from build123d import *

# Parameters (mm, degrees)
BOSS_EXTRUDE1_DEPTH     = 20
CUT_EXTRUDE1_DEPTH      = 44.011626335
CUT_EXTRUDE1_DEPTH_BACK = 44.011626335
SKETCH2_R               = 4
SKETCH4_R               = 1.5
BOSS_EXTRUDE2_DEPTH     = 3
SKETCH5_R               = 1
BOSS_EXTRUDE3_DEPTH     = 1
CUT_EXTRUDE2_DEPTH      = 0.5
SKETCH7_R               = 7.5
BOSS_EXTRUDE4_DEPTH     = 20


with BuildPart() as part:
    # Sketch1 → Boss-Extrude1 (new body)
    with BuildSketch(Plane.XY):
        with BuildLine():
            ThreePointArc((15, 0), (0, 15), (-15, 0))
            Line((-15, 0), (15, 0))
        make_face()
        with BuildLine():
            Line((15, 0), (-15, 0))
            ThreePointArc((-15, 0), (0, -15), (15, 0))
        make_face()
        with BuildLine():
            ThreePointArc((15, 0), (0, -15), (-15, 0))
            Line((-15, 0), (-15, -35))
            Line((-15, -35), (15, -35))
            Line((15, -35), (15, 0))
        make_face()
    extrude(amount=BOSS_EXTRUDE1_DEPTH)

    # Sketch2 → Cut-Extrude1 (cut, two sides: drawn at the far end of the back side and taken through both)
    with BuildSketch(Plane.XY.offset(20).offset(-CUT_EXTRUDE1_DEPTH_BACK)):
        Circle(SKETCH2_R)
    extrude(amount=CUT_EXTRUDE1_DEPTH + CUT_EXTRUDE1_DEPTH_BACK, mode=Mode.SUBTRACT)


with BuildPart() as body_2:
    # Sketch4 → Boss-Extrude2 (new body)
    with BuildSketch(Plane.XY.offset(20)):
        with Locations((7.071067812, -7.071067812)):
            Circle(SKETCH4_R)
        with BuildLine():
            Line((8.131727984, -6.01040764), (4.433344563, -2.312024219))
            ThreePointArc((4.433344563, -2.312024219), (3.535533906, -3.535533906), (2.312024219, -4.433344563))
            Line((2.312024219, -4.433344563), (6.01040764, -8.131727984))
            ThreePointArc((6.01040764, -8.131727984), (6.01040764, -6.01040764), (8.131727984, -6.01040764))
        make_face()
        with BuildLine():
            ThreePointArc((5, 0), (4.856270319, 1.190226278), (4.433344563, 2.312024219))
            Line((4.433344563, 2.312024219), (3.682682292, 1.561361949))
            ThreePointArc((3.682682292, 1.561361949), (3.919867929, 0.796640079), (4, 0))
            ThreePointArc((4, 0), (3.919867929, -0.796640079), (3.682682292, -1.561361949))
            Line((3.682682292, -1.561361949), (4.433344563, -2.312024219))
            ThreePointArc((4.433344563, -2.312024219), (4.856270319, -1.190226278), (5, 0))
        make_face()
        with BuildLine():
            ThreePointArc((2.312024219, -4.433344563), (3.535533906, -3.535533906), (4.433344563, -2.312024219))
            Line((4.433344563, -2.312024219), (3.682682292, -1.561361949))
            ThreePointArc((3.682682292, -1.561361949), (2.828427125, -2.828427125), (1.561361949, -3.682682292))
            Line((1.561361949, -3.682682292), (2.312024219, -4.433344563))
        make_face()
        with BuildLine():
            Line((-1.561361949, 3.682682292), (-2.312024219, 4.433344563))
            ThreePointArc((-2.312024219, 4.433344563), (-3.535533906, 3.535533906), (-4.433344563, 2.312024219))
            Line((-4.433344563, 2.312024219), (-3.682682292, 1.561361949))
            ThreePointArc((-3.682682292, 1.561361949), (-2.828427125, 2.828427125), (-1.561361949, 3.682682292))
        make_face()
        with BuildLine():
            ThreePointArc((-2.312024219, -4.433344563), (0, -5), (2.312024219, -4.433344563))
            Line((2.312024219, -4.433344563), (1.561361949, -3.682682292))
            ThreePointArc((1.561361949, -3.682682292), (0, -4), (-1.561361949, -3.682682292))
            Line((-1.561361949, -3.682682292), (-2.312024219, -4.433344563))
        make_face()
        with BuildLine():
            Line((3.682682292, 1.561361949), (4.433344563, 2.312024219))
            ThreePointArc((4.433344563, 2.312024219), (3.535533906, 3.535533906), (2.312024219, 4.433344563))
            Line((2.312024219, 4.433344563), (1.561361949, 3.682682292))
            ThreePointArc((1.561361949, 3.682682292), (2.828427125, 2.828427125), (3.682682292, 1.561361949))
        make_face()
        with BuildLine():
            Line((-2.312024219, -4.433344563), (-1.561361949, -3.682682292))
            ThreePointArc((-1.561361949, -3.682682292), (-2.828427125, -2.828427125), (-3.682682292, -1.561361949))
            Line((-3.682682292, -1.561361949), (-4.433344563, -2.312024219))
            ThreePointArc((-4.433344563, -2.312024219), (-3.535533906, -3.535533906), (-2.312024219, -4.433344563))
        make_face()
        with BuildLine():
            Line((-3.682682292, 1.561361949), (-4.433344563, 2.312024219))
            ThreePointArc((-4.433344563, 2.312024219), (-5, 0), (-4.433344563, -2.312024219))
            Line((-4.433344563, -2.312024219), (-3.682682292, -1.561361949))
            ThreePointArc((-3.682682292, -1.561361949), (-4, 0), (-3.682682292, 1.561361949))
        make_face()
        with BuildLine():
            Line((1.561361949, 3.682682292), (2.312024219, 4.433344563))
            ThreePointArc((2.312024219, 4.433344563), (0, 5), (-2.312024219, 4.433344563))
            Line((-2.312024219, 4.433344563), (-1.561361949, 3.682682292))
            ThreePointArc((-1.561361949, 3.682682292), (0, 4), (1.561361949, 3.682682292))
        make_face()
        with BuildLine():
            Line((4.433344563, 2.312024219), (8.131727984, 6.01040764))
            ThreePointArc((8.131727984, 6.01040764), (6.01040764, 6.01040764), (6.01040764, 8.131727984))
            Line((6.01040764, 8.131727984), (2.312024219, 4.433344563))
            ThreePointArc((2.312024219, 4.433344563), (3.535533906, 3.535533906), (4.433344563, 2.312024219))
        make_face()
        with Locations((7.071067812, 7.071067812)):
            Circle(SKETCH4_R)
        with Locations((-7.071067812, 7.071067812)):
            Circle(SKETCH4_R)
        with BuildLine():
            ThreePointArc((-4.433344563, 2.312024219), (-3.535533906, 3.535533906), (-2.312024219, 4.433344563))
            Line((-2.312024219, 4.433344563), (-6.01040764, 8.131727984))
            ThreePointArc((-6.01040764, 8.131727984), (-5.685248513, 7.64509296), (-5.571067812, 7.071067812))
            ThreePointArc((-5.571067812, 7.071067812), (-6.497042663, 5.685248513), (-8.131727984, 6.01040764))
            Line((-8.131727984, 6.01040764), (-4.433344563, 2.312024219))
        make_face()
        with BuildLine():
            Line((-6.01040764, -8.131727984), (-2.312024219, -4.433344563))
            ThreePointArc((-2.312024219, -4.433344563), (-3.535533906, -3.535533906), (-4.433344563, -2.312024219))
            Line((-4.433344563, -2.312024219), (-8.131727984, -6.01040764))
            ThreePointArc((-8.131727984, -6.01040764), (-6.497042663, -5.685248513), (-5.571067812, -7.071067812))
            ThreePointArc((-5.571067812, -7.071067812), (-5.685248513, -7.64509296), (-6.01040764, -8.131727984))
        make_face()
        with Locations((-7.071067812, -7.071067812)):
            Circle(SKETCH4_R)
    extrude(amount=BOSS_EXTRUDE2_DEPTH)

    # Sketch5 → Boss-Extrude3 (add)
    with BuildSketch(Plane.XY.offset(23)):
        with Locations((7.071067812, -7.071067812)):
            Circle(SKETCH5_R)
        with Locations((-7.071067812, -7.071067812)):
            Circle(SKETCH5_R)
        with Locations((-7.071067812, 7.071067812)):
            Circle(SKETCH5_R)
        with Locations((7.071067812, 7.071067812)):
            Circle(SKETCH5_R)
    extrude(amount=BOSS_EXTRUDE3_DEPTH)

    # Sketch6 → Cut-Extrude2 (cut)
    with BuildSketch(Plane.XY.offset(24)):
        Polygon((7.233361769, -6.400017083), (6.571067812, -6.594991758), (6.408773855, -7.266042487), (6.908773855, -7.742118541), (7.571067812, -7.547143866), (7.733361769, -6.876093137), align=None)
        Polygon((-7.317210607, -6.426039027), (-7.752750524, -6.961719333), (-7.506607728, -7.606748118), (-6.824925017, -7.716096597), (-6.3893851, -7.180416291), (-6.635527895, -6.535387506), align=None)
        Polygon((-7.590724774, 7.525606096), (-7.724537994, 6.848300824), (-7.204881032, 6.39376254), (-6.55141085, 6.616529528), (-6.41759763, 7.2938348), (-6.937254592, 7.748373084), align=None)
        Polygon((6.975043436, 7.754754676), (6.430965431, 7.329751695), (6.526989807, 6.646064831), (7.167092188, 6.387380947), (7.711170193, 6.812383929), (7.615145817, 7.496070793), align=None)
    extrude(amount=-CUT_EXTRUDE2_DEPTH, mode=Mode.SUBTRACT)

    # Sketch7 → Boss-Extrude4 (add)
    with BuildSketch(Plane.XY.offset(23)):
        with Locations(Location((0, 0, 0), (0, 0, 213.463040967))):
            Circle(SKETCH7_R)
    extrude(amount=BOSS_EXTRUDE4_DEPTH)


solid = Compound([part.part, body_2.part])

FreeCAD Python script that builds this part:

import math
import FreeCAD as App
import Part
import Sketcher

doc = App.newDocument("Part")
body = doc.addObject("PartDesign::Body", "Body")

sketch1 = doc.addObject("Sketcher::SketchObject", "Sketch")
body.addObject(sketch1)
sketch1.AttachmentSupport = (doc.XY_Plane, [""])
sketch1.MapMode = "FlatFace"
sketch1.addGeometry(Part.ArcOfCircle(Part.Circle(App.Vector(0, 0, 0), App.Vector(0, 0, 1), 15), math.radians(0), math.radians(180)), False)
sketch1.addGeometry(Part.LineSegment(App.Vector(-15, 0, 0), App.Vector(-15, -35, 0)), False)
sketch1.addGeometry(Part.LineSegment(App.Vector(-15, -35, 0), App.Vector(15, -35, 0)), False)
sketch1.addGeometry(Part.LineSegment(App.Vector(15, -35, 0), App.Vector(15, 0, 0)), False)
sketch1.addConstraint(Sketcher.Constraint("Tangent", 0, 2, 1, 1))
sketch1.addConstraint(Sketcher.Constraint("Coincident", 1, 2, 2, 1))
sketch1.addConstraint(Sketcher.Constraint("Coincident", 2, 2, 3, 1))
sketch1.addConstraint(Sketcher.Constraint("Tangent", 3, 2, 0, 1))
sketch1.addConstraint(Sketcher.Constraint("Vertical", 1))
sketch1.addConstraint(Sketcher.Constraint("Horizontal", 2))
sketch1.addConstraint(Sketcher.Constraint("Vertical", 3))
sketch1.addConstraint(Sketcher.Constraint("Coincident", 0, 3, -1, 1))
sketch1.addConstraint(Sketcher.Constraint("Radius", 0, 15.0))
sketch1.addConstraint(Sketcher.Constraint("DistanceY", 1, 2, 1, 1, 35.0))
pad1 = doc.addObject("PartDesign::Pad", "Pad")
body.addObject(pad1)
pad1.Profile = sketch1
pad1.Length = 20

sketch2 = doc.addObject("Sketcher::SketchObject", "Sketch001")
body.addObject(sketch2)
sketch2.AttachmentSupport = (doc.XY_Plane, [""])
sketch2.MapMode = "FlatFace"
sketch2.AttachmentOffset = App.Placement(App.Vector(0, 0, 20), App.Rotation())
sketch2.addGeometry(Part.Circle(App.Vector(0, 0, 0), App.Vector(0, 0, 1), 4), False)
sketch2.addConstraint(Sketcher.Constraint("Coincident", 0, 3, -1, 1))
sketch2.addConstraint(Sketcher.Constraint("Diameter", 0, 8.0))
pocket1 = doc.addObject("PartDesign::Pocket", "Pocket")
body.addObject(pocket1)
pocket1.Profile = sketch2
pocket1.Type = "ThroughAll"
pocket1.Midplane = True
body2 = doc.addObject("PartDesign::Body", "Body001")

sketch3 = doc.addObject("Sketcher::SketchObject", "Sketch002")
body2.addObject(sketch3)
sketch3.AttachmentSupport = (doc.getObject("XY_Plane001"), [""])
sketch3.MapMode = "FlatFace"
sketch3.AttachmentOffset = App.Placement(App.Vector(0, 0, 20), App.Rotation())
sketch3.addGeometry(Part.ArcOfCircle(Part.Circle(App.Vector(0, 0, 0), App.Vector(0, 0, 1), 5), math.radians(152), math.radians(208)), False)
sketch3.addGeometry(Part.LineSegment(App.Vector(-4.4, -2.3, 0), App.Vector(-8.1, -6, 0)), False)
sketch3.addGeometry(Part.ArcOfCircle(Part.Circle(App.Vector(-7.1, -7.1, 0), App.Vector(0, 0, 1), 1.5), math.radians(135), math.radians(315)), False)
sketch3.addGeometry(Part.LineSegment(App.Vector(-6, -8.1, 0), App.Vector(-2.3, -4.4, 0)), False)
sketch3.addGeometry(Part.ArcOfCircle(Part.Circle(App.Vector(0, 0, 0), App.Vector(0, 0, 1), 5), math.radians(-118), math.radians(-62)), False)
sketch3.addGeometry(Part.LineSegment(App.Vector(2.3, -4.4, 0), App.Vector(6, -8.1, 0)), False)
sketch3.addGeometry(Part.ArcOfCircle(Part.Circle(App.Vector(7.1, -7.1, 0), App.Vector(0, 0, 1), 1.5), math.radians(-135), math.radians(45)), False)
sketch3.addGeometry(Part.LineSegment(App.Vector(8.1, -6, 0), App.Vector(4.4, -2.3, 0)), False)
sketch3.addGeometry(Part.ArcOfCircle(Part.Circle(App.Vector(0, 0, 0), App.Vector(0, 0, 1), 5), math.radians(-28), math.radians(0)), False)
sketch3.addGeometry(Part.ArcOfCircle(Part.Circle(App.Vector(0, 0, 0), App.Vector(0, 0, 1), 5), math.radians(0), math.radians(28)), False)
sketch3.addGeometry(Part.LineSegment(App.Vector(4.4, 2.3, 0), App.Vector(8.1, 6, 0)), False)
sketch3.addGeometry(Part.ArcOfCircle(Part.Circle(App.Vector(7.1, 7.1, 0), App.Vector(0, 0, 1), 1.5), math.radians(-45), math.radians(135)), False)
sketch3.addGeometry(Part.LineSegment(App.Vector(6, 8.1, 0), App.Vector(2.3, 4.4, 0)), False)
sketch3.addGeometry(Part.ArcOfCircle(Part.Circle(App.Vector(0, 0, 0), App.Vector(0, 0, 1), 5), math.radians(62), math.radians(118)), False)
sketch3.addGeometry(Part.LineSegment(App.Vector(-2.3, 4.4, 0), App.Vector(-6, 8.1, 0)), False)
sketch3.addGeometry(Part.ArcOfCircle(Part.Circle(App.Vector(-7.1, 7.1, 0), App.Vector(0, 0, 1), 1.5), math.radians(45), math.radians(225)), False)
sketch3.addGeometry(Part.LineSegment(App.Vector(-8.1, 6, 0), App.Vector(-4.4, 2.3, 0)), False)
sketch3.addGeometry(Part.ArcOfCircle(Part.Circle(App.Vector(0, 0, 0), App.Vector(0, 0, 1), 4), math.radians(-113), math.radians(-67)), False)
sketch3.addGeometry(Part.ArcOfCircle(Part.Circle(App.Vector(0, 0, 0), App.Vector(0, 0, 1), 4), math.radians(-157), math.radians(-113)), False)
sketch3.addGeometry(Part.ArcOfCircle(Part.Circle(App.Vector(0, 0, 0), App.Vector(0, 0, 1), 4), math.radians(157), math.radians(203)), False)
sketch3.addGeometry(Part.ArcOfCircle(Part.Circle(App.Vector(0, 0, 0), App.Vector(0, 0, 1), 4), math.radians(113), math.radians(157)), False)
sketch3.addGeometry(Part.ArcOfCircle(Part.Circle(App.Vector(0, 0, 0), App.Vector(0, 0, 1), 4), math.radians(67), math.radians(113)), False)
sketch3.addGeometry(Part.ArcOfCircle(Part.Circle(App.Vector(0, 0, 0), App.Vector(0, 0, 1), 4), math.radians(23), math.radians(67)), False)
sketch3.addGeometry(Part.ArcOfCircle(Part.Circle(App.Vector(0, 0, 0), App.Vector(0, 0, 1), 4), math.radians(0), math.radians(23)), False)
sketch3.addGeometry(Part.ArcOfCircle(Part.Circle(App.Vector(0, 0, 0), App.Vector(0, 0, 1), 4), math.radians(-23), math.radians(0)), False)
sketch3.addGeometry(Part.ArcOfCircle(Part.Circle(App.Vector(0, 0, 0), App.Vector(0, 0, 1), 4), math.radians(-67), math.radians(-23)), False)
sketch3.addConstraint(Sketcher.Constraint("Coincident", 0, 2, 1, 1))
sketch3.addConstraint(Sketcher.Constraint("Tangent", 1, 2, 2, 1))
sketch3.addConstraint(Sketcher.Constraint("Tangent", 2, 2, 3, 1))
sketch3.addConstraint(Sketcher.Constraint("Coincident", 3, 2, 4, 1))
sketch3.addConstraint(Sketcher.Constraint("Coincident", 4, 2, 5, 1))
sketch3.addConstraint(Sketcher.Constraint("Tangent", 5, 2, 6, 1))
sketch3.addConstraint(Sketcher.Constraint("Tangent", 6, 2, 7, 1))
sketch3.addConstraint(Sketcher.Constraint("Coincident", 7, 2, 8, 1))
sketch3.addConstraint(Sketcher.Constraint("Tangent", 8, 2, 9, 1))
sketch3.addConstraint(Sketcher.Constraint("Coincident", 9, 2, 10, 1))
sketch3.addConstraint(Sketcher.Constraint("Tangent", 10, 2, 11, 1))
sketch3.addConstraint(Sketcher.Constraint("Tangent", 11, 2, 12, 1))
sketch3.addConstraint(Sketcher.Constraint("Coincident", 12, 2, 13, 1))
sketch3.addConstraint(Sketcher.Constraint("Coincident", 13, 2, 14, 1))
sketch3.addConstraint(Sketcher.Constraint("Tangent", 14, 2, 15, 1))
sketch3.addConstraint(Sketcher.Constraint("Tangent", 15, 2, 16, 1))
sketch3.addConstraint(Sketcher.Constraint("Coincident", 16, 2, 0, 1))
sketch3.addConstraint(Sketcher.Constraint("Tangent", 17, 1, 18, 2))
sketch3.addConstraint(Sketcher.Constraint("Tangent", 18, 1, 19, 2))
sketch3.addConstraint(Sketcher.Constraint("Tangent", 19, 1, 20, 2))
sketch3.addConstraint(Sketcher.Constraint("Tangent", 20, 1, 21, 2))
sketch3.addConstraint(Sketcher.Constraint("Tangent", 21, 1, 22, 2))
sketch3.addConstraint(Sketcher.Constraint("Tangent", 22, 1, 23, 2))
sketch3.addConstraint(Sketcher.Constraint("Tangent", 23, 1, 24, 2))
sketch3.addConstraint(Sketcher.Constraint("Tangent", 24, 1, 25, 2))
sketch3.addConstraint(Sketcher.Constraint("Tangent", 25, 1, 17, 2))
sketch3.addConstraint(Sketcher.Constraint("Coincident", 0, 3, -1, 1))
sketch3.addConstraint(Sketcher.Constraint("Coincident", 4, 3, -1, 1))
sketch3.addConstraint(Sketcher.Constraint("Coincident", 8, 3, -1, 1))
sketch3.addConstraint(Sketcher.Constraint("Coincident", 13, 3, -1, 1))
sketch3.addConstraint(Sketcher.Constraint("Coincident", 17, 3, -1, 1))
sketch3.addConstraint(Sketcher.Constraint("Coincident", 19, 3, -1, 1))
sketch3.addConstraint(Sketcher.Constraint("Coincident", 21, 3, -1, 1))
sketch3.addConstraint(Sketcher.Constraint("Coincident", 23, 3, -1, 1))
sketch3.addConstraint(Sketcher.Constraint("Equal", 0, 4))
sketch3.addConstraint(Sketcher.Constraint("Equal", 2, 6))
sketch3.addConstraint(Sketcher.Constraint("Equal", 4, 8))
sketch3.addConstraint(Sketcher.Constraint("Equal", 8, 9))
sketch3.addConstraint(Sketcher.Constraint("Equal", 6, 11))
sketch3.addConstraint(Sketcher.Constraint("Equal", 9, 13))
sketch3.addConstraint(Sketcher.Constraint("Equal", 11, 15))
sketch3.addConstraint(Sketcher.Constraint("Symmetric", 2, 3, 11, 3, -1, 1))
sketch3.addConstraint(Sketcher.Constraint("Symmetric", 6, 3, 15, 3, -1, 1))
sketch3.addConstraint(Sketcher.Constraint("Symmetric", 2, 3, 6, 3, -2))
sketch3.addConstraint(Sketcher.Constraint("PointOnObject", 8, 2, -1))
sketch3.addConstraint(Sketcher.Constraint("PointOnObject", 23, 1, -1))
sketch3.addConstraint(Sketcher.Constraint("Parallel", 1, 3))
sketch3.addConstraint(Sketcher.Constraint("Perpendicular", 3, 5))
sketch3.addConstraint(Sketcher.Constraint("Parallel", 5, 7))
sketch3.addConstraint(Sketcher.Constraint("Perpendicular", 7, 10))
sketch3.addConstraint(Sketcher.Constraint("Parallel", 10, 12))
sketch3.addConstraint(Sketcher.Constraint("Perpendicular", 12, 14))
sketch3.addConstraint(Sketcher.Constraint("Parallel", 14, 16))
sketch3.addConstraint(Sketcher.Constraint("Horizontal", 3, 2, 4, 2))
sketch3.addConstraint(Sketcher.Constraint("Horizontal", 20, 1, 21, 1))
sketch3.addConstraint(Sketcher.Constraint("Horizontal", 19, 1, 22, 1))
sketch3.addConstraint(Sketcher.Constraint("Horizontal", 18, 1, 24, 1))
sketch3.addConstraint(Sketcher.Constraint("Horizontal", 17, 1, 25, 1))
sketch3.addConstraint(Sketcher.Constraint("Vertical", 18, 1, 19, 1))
sketch3.addConstraint(Sketcher.Constraint("Vertical", 17, 1, 20, 1))
sketch3.addConstraint(Sketcher.Constraint("Equal", 1, 3))
sketch3.addConstraint(Sketcher.Constraint("Radius", 0, 5.0))
sketch3.addConstraint(Sketcher.Constraint("Radius", 17, 4.0))
sketch3.addConstraint(Sketcher.Constraint("Radius", 2, 1.5))
sketch3.addConstraint(Sketcher.Constraint("DistanceX", 17, 1, -1, 1, 1.561362))
sketch3.addConstraint(Sketcher.Constraint("DistanceY", 18, 1, -1, 1, 1.561362))
sketch3.addConstraint(Sketcher.Constraint("DistanceX", 3, 2, 5, 2, 8.322432))
pad2 = doc.addObject("PartDesign::Pad", "Pad001")
body2.addObject(pad2)
pad2.Profile = sketch3
pad2.Length = 3

sketch4 = doc.addObject("Sketcher::SketchObject", "Sketch003")
body2.addObject(sketch4)
sketch4.AttachmentSupport = (doc.getObject("XY_Plane001"), [""])
sketch4.MapMode = "FlatFace"
sketch4.AttachmentOffset = App.Placement(App.Vector(0, 0, 23), App.Rotation())
sketch4.addGeometry(Part.Circle(App.Vector(7.1, -7.1, 0), App.Vector(0, 0, 1), 1), False)
sketch4.addGeometry(Part.Circle(App.Vector(-7.1, -7.1, 0), App.Vector(0, 0, 1), 1), False)
sketch4.addGeometry(Part.Circle(App.Vector(-7.1, 7.1, 0), App.Vector(0, 0, 1), 1), False)
sketch4.addGeometry(Part.Circle(App.Vector(7.1, 7.1, 0), App.Vector(0, 0, 1), 1), False)
sketch4.addConstraint(Sketcher.Constraint("Equal", 0, 1))
sketch4.addConstraint(Sketcher.Constraint("Equal", 1, 2))
sketch4.addConstraint(Sketcher.Constraint("Equal", 2, 3))
sketch4.addConstraint(Sketcher.Constraint("Symmetric", 0, 3, 2, 3, -1, 1))
sketch4.addConstraint(Sketcher.Constraint("Symmetric", 1, 3, 3, 3, -1, 1))
sketch4.addConstraint(Sketcher.Constraint("Symmetric", 0, 3, 1, 3, -2))
sketch4.addConstraint(Sketcher.Constraint("Diameter", 0, 2.0))
sketch4.addConstraint(Sketcher.Constraint("DistanceX", -1, 1, 0, 3, 7.071068))
sketch4.addConstraint(Sketcher.Constraint("DistanceY", 0, 3, -1, 1, 7.071068))
pad3 = doc.addObject("PartDesign::Pad", "Pad002")
body2.addObject(pad3)
pad3.Profile = sketch4
pad3.Length = 1

sketch5 = doc.addObject("Sketcher::SketchObject", "Sketch004")
body2.addObject(sketch5)
sketch5.AttachmentSupport = (doc.getObject("XY_Plane001"), [""])
sketch5.MapMode = "FlatFace"
sketch5.AttachmentOffset = App.Placement(App.Vector(0, 0, 24), App.Rotation())
sketch5.addGeometry(Part.LineSegment(App.Vector(7.233362, -6.400017, 0), App.Vector(6.571068, -6.594992, 0)), False)
sketch5.addGeometry(Part.LineSegment(App.Vector(6.571068, -6.594992, 0), App.Vector(6.408774, -7.266042, 0)), False)
sketch5.addGeometry(Part.LineSegment(App.Vector(6.408774, -7.266042, 0), App.Vector(6.908774, -7.742119, 0)), False)
sketch5.addGeometry(Part.LineSegment(App.Vector(6.908774, -7.742119, 0), App.Vector(7.571068, -7.547144, 0)), False)
sketch5.addGeometry(Part.LineSegment(App.Vector(7.571068, -7.547144, 0), App.Vector(7.733362, -6.876093, 0)), False)
sketch5.addGeometry(Part.LineSegment(App.Vector(7.733362, -6.876093, 0), App.Vector(7.233362, -6.400017, 0)), False)
sketch5.addGeometry(Part.LineSegment(App.Vector(-7.317211, -6.426039, 0), App.Vector(-7.752751, -6.961719, 0)), False)
sketch5.addGeometry(Part.LineSegment(App.Vector(-7.752751, -6.961719, 0), App.Vector(-7.506608, -7.606748, 0)), False)
sketch5.addGeometry(Part.LineSegment(App.Vector(-7.506608, -7.606748, 0), App.Vector(-6.824925, -7.716097, 0)), False)
sketch5.addGeometry(Part.LineSegment(App.Vector(-6.824925, -7.716097, 0), App.Vector(-6.389385, -7.180416, 0)), False)
sketch5.addGeometry(Part.LineSegment(App.Vector(-6.389385, -7.180416, 0), App.Vector(-6.635528, -6.535388, 0)), False)
sketch5.addGeometry(Part.LineSegment(App.Vector(-6.635528, -6.535388, 0), App.Vector(-7.317211, -6.426039, 0)), False)
sketch5.addGeometry(Part.LineSegment(App.Vector(-7.590725, 7.525606, 0), App.Vector(-7.724538, 6.848301, 0)), False)
sketch5.addGeometry(Part.LineSegment(App.Vector(-7.724538, 6.848301, 0), App.Vector(-7.204881, 6.393763, 0)), False)
sketch5.addGeometry(Part.LineSegment(App.Vector(-7.204881, 6.393763, 0), App.Vector(-6.551411, 6.61653, 0)), False)
sketch5.addGeometry(Part.LineSegment(App.Vector(-6.551411, 6.61653, 0), App.Vector(-6.417598, 7.293835, 0)), False)
sketch5.addGeometry(Part.LineSegment(App.Vector(-6.417598, 7.293835, 0), App.Vector(-6.937255, 7.748373, 0)), False)
sketch5.addGeometry(Part.LineSegment(App.Vector(-6.937255, 7.748373, 0), App.Vector(-7.590725, 7.525606, 0)), False)
sketch5.addGeometry(Part.LineSegment(App.Vector(6.975043, 7.754755, 0), App.Vector(6.430965, 7.329752, 0)), False)
sketch5.addGeometry(Part.LineSegment(App.Vector(6.430965, 7.329752, 0), App.Vector(6.52699, 6.646065, 0)), False)
sketch5.addGeometry(Part.LineSegment(App.Vector(6.52699, 6.646065, 0), App.Vector(7.167092, 6.387381, 0)), False)
sketch5.addGeometry(Part.LineSegment(App.Vector(7.167092, 6.387381, 0), App.Vector(7.71117, 6.812384, 0)), False)
sketch5.addGeometry(Part.LineSegment(App.Vector(7.71117, 6.812384, 0), App.Vector(7.615146, 7.496071, 0)), False)
sketch5.addGeometry(Part.LineSegment(App.Vector(7.615146, 7.496071, 0), App.Vector(6.975043, 7.754755, 0)), False)
sketch5.addConstraint(Sketcher.Constraint("Coincident", 0, 2, 1, 1))
sketch5.addConstraint(Sketcher.Constraint("Coincident", 1, 2, 2, 1))
sketch5.addConstraint(Sketcher.Constraint("Coincident", 2, 2, 3, 1))
sketch5.addConstraint(Sketcher.Constraint("Coincident", 3, 2, 4, 1))
sketch5.addConstraint(Sketcher.Constraint("Coincident", 4, 2, 5, 1))
sketch5.addConstraint(Sketcher.Constraint("Coincident", 5, 2, 0, 1))
sketch5.addConstraint(Sketcher.Constraint("Coincident", 6, 2, 7, 1))
sketch5.addConstraint(Sketcher.Constraint("Coincident", 7, 2, 8, 1))
sketch5.addConstraint(Sketcher.Constraint("Coincident", 8, 2, 9, 1))
sketch5.addConstraint(Sketcher.Constraint("Coincident", 9, 2, 10, 1))
sketch5.addConstraint(Sketcher.Constraint("Coincident", 10, 2, 11, 1))
sketch5.addConstraint(Sketcher.Constraint("Coincident", 11, 2, 6, 1))
sketch5.addConstraint(Sketcher.Constraint("Coincident", 12, 2, 13, 1))
sketch5.addConstraint(Sketcher.Constraint("Coincident", 13, 2, 14, 1))
sketch5.addConstraint(Sketcher.Constraint("Coincident", 14, 2, 15, 1))
sketch5.addConstraint(Sketcher.Constraint("Coincident", 15, 2, 16, 1))
sketch5.addConstraint(Sketcher.Constraint("Coincident", 16, 2, 17, 1))
sketch5.addConstraint(Sketcher.Constraint("Coincident", 17, 2, 12, 1))
sketch5.addConstraint(Sketcher.Constraint("Coincident", 18, 2, 19, 1))
sketch5.addConstraint(Sketcher.Constraint("Coincident", 19, 2, 20, 1))
sketch5.addConstraint(Sketcher.Constraint("Coincident", 20, 2, 21, 1))
sketch5.addConstraint(Sketcher.Constraint("Coincident", 21, 2, 22, 1))
sketch5.addConstraint(Sketcher.Constraint("Coincident", 22, 2, 23, 1))
sketch5.addConstraint(Sketcher.Constraint("Coincident", 23, 2, 18, 1))
sketch5.addConstraint(Sketcher.Constraint("DistanceX", 0, 2, 3, 2, 1.0))
sketch5.addConstraint(Sketcher.Constraint("DistanceX", 1, 2, 2, 2, 0.5))
sketch5.addConstraint(Sketcher.Constraint("DistanceX", 5, 2, 4, 2, 0.5))
sketch5.addConstraint(Sketcher.Constraint("DistanceY", -1, 1, 12, 2, 6.848301))
sketch5.addConstraint(Sketcher.Constraint("DistanceY", 3, 2, 1, 2, 0.281101))
sketch5.addConstraint(Sketcher.Constraint("DistanceY", 4, 2, 0, 2, 0.281101))
sketch5.addConstraint(Sketcher.Constraint("DistanceY", 2, 2, 5, 2, 1.342101))
sketch5.addConstraint(Sketcher.Constraint("DistanceY", 2, 2, 6, 2, 0.780399))
sketch5.addConstraint(Sketcher.Constraint("DistanceX", 8, 2, 1, 2, 13.233699))
sketch5.addConstraint(Sketcher.Constraint("DistanceX", 10, 2, 1, 2, 13.044302))
sketch5.addConstraint(Sketcher.Constraint("DistanceY", 11, 2, 13, 2, 12.819802))
sketch5.addConstraint(Sketcher.Constraint("DistanceX", 11, 2, 14, 2, 0.7658))
sketch5.addConstraint(Sketcher.Constraint("DistanceX", 14, 2, 19, 2, 13.078401))
sketch5.addConstraint(Sketcher.Constraint("DistanceY", 5, 2, 20, 2, 12.787398))
sketch5.addConstraint(Sketcher.Constraint("DistanceY", 5, 2, 21, 2, 13.212401))
sketch5.addConstraint(Sketcher.Constraint("DistanceY", 0, 2, -1, 1, 6.594992))
sketch5.addConstraint(Sketcher.Constraint("DistanceY", 2, 2, -1, 1, 7.742119))
sketch5.addConstraint(Sketcher.Constraint("DistanceX", -1, 1, 4, 2, 7.733362))
sketch5.addConstraint(Sketcher.Constraint("DistanceX", 6, 2, -1, 1, 7.752751))
sketch5.addConstraint(Sketcher.Constraint("DistanceY", 7, 2, -1, 1, 7.606748))
sketch5.addConstraint(Sketcher.Constraint("DistanceX", 11, 2, -1, 1, 7.317211))
sketch5.addConstraint(Sketcher.Constraint("DistanceY", 11, 2, -1, 1, 6.426039))
sketch5.addConstraint(Sketcher.Constraint("DistanceX", 13, 2, -1, 1, 7.204881))
sketch5.addConstraint(Sketcher.Constraint("DistanceY", -1, 1, 14, 2, 6.61653))
sketch5.addConstraint(Sketcher.Constraint("DistanceY", -1, 1, 18, 2, 7.329752))
sketch5.addConstraint(Sketcher.Constraint("DistanceX", -1, 1, 21, 2, 7.71117))
sketch5.addConstraint(Sketcher.Constraint("DistanceY", -1, 1, 22, 2, 7.496071))
sketch5.addConstraint(Sketcher.Constraint("DistanceY", 1, 2, 0, 2, 0.671051))
sketch5.addConstraint(Sketcher.Constraint("DistanceX", 6, 2, 0, 2, 14.323818))
sketch5.addConstraint(Sketcher.Constraint("DistanceX", 7, 2, 1, 2, 13.915382))
sketch5.addConstraint(Sketcher.Constraint("DistanceX", 7, 2, 5, 2, 14.739969))
sketch5.addConstraint(Sketcher.Constraint("DistanceY", 8, 2, 7, 2, 0.109348))
sketch5.addConstraint(Sketcher.Constraint("DistanceX", 8, 2, 9, 2, 0.43554))
sketch5.addConstraint(Sketcher.Constraint("DistanceY", 8, 2, 9, 2, 0.53568))
sketch5.addConstraint(Sketcher.Constraint("DistanceY", 9, 2, 10, 2, 0.645029))
sketch5.addConstraint(Sketcher.Constraint("DistanceX", 12, 2, 10, 2, 1.08901))
sketch5.addConstraint(Sketcher.Constraint("DistanceX", 12, 2, 15, 2, 1.30694))
sketch5.addConstraint(Sketcher.Constraint("DistanceY", 15, 2, 16, 2, 0.454538))
sketch5.addConstraint(Sketcher.Constraint("DistanceY", 13, 2, 16, 2, 1.354611))
sketch5.addConstraint(Sketcher.Constraint("DistanceX", 17, 2, 16, 2, 0.65347))
sketch5.addConstraint(Sketcher.Constraint("DistanceY", 15, 2, 17, 2, 0.231771))
sketch5.addConstraint(Sketcher.Constraint("DistanceX", 16, 2, 18, 2, 13.36822))
sketch5.addConstraint(Sketcher.Constraint("DistanceY", 19, 2, 15, 2, 0.64777))
sketch5.addConstraint(Sketcher.Constraint("DistanceX", 20, 2, 5, 2, 0.06627))
sketch5.addConstraint(Sketcher.Constraint("DistanceX", 18, 2, 22, 2, 1.18418))
sketch5.addConstraint(Sketcher.Constraint("DistanceX", 18, 2, 23, 2, 0.544078))
sketch5.addConstraint(Sketcher.Constraint("DistanceY", 19, 2, 23, 2, 1.10869))
sketch5.addConstraint(Sketcher.Constraint("DistanceX", 23, 2, 20, 2, 0.192049))
pocket2 = doc.addObject("PartDesign::Pocket", "Pocket001")
body2.addObject(pocket2)
pocket2.Profile = sketch5
pocket2.Length = 0.5

sketch6 = doc.addObject("Sketcher::SketchObject", "Sketch005")
body2.addObject(sketch6)
sketch6.AttachmentSupport = (doc.getObject("XY_Plane001"), [""])
sketch6.MapMode = "FlatFace"
sketch6.AttachmentOffset = App.Placement(App.Vector(0, 0, 23), App.Rotation())
sketch6.addGeometry(Part.Circle(App.Vector(0, 0, 0), App.Vector(0, 0, 1), 8), False)
sketch6.addConstraint(Sketcher.Constraint("Coincident", 0, 3, -1, 1))
sketch6.addConstraint(Sketcher.Constraint("Diameter", 0, 15.0))
pad4 = doc.addObject("PartDesign::Pad", "Pad003")
body2.addObject(pad4)
pad4.Profile = sketch6
pad4.Length = 20

doc.recompute()
